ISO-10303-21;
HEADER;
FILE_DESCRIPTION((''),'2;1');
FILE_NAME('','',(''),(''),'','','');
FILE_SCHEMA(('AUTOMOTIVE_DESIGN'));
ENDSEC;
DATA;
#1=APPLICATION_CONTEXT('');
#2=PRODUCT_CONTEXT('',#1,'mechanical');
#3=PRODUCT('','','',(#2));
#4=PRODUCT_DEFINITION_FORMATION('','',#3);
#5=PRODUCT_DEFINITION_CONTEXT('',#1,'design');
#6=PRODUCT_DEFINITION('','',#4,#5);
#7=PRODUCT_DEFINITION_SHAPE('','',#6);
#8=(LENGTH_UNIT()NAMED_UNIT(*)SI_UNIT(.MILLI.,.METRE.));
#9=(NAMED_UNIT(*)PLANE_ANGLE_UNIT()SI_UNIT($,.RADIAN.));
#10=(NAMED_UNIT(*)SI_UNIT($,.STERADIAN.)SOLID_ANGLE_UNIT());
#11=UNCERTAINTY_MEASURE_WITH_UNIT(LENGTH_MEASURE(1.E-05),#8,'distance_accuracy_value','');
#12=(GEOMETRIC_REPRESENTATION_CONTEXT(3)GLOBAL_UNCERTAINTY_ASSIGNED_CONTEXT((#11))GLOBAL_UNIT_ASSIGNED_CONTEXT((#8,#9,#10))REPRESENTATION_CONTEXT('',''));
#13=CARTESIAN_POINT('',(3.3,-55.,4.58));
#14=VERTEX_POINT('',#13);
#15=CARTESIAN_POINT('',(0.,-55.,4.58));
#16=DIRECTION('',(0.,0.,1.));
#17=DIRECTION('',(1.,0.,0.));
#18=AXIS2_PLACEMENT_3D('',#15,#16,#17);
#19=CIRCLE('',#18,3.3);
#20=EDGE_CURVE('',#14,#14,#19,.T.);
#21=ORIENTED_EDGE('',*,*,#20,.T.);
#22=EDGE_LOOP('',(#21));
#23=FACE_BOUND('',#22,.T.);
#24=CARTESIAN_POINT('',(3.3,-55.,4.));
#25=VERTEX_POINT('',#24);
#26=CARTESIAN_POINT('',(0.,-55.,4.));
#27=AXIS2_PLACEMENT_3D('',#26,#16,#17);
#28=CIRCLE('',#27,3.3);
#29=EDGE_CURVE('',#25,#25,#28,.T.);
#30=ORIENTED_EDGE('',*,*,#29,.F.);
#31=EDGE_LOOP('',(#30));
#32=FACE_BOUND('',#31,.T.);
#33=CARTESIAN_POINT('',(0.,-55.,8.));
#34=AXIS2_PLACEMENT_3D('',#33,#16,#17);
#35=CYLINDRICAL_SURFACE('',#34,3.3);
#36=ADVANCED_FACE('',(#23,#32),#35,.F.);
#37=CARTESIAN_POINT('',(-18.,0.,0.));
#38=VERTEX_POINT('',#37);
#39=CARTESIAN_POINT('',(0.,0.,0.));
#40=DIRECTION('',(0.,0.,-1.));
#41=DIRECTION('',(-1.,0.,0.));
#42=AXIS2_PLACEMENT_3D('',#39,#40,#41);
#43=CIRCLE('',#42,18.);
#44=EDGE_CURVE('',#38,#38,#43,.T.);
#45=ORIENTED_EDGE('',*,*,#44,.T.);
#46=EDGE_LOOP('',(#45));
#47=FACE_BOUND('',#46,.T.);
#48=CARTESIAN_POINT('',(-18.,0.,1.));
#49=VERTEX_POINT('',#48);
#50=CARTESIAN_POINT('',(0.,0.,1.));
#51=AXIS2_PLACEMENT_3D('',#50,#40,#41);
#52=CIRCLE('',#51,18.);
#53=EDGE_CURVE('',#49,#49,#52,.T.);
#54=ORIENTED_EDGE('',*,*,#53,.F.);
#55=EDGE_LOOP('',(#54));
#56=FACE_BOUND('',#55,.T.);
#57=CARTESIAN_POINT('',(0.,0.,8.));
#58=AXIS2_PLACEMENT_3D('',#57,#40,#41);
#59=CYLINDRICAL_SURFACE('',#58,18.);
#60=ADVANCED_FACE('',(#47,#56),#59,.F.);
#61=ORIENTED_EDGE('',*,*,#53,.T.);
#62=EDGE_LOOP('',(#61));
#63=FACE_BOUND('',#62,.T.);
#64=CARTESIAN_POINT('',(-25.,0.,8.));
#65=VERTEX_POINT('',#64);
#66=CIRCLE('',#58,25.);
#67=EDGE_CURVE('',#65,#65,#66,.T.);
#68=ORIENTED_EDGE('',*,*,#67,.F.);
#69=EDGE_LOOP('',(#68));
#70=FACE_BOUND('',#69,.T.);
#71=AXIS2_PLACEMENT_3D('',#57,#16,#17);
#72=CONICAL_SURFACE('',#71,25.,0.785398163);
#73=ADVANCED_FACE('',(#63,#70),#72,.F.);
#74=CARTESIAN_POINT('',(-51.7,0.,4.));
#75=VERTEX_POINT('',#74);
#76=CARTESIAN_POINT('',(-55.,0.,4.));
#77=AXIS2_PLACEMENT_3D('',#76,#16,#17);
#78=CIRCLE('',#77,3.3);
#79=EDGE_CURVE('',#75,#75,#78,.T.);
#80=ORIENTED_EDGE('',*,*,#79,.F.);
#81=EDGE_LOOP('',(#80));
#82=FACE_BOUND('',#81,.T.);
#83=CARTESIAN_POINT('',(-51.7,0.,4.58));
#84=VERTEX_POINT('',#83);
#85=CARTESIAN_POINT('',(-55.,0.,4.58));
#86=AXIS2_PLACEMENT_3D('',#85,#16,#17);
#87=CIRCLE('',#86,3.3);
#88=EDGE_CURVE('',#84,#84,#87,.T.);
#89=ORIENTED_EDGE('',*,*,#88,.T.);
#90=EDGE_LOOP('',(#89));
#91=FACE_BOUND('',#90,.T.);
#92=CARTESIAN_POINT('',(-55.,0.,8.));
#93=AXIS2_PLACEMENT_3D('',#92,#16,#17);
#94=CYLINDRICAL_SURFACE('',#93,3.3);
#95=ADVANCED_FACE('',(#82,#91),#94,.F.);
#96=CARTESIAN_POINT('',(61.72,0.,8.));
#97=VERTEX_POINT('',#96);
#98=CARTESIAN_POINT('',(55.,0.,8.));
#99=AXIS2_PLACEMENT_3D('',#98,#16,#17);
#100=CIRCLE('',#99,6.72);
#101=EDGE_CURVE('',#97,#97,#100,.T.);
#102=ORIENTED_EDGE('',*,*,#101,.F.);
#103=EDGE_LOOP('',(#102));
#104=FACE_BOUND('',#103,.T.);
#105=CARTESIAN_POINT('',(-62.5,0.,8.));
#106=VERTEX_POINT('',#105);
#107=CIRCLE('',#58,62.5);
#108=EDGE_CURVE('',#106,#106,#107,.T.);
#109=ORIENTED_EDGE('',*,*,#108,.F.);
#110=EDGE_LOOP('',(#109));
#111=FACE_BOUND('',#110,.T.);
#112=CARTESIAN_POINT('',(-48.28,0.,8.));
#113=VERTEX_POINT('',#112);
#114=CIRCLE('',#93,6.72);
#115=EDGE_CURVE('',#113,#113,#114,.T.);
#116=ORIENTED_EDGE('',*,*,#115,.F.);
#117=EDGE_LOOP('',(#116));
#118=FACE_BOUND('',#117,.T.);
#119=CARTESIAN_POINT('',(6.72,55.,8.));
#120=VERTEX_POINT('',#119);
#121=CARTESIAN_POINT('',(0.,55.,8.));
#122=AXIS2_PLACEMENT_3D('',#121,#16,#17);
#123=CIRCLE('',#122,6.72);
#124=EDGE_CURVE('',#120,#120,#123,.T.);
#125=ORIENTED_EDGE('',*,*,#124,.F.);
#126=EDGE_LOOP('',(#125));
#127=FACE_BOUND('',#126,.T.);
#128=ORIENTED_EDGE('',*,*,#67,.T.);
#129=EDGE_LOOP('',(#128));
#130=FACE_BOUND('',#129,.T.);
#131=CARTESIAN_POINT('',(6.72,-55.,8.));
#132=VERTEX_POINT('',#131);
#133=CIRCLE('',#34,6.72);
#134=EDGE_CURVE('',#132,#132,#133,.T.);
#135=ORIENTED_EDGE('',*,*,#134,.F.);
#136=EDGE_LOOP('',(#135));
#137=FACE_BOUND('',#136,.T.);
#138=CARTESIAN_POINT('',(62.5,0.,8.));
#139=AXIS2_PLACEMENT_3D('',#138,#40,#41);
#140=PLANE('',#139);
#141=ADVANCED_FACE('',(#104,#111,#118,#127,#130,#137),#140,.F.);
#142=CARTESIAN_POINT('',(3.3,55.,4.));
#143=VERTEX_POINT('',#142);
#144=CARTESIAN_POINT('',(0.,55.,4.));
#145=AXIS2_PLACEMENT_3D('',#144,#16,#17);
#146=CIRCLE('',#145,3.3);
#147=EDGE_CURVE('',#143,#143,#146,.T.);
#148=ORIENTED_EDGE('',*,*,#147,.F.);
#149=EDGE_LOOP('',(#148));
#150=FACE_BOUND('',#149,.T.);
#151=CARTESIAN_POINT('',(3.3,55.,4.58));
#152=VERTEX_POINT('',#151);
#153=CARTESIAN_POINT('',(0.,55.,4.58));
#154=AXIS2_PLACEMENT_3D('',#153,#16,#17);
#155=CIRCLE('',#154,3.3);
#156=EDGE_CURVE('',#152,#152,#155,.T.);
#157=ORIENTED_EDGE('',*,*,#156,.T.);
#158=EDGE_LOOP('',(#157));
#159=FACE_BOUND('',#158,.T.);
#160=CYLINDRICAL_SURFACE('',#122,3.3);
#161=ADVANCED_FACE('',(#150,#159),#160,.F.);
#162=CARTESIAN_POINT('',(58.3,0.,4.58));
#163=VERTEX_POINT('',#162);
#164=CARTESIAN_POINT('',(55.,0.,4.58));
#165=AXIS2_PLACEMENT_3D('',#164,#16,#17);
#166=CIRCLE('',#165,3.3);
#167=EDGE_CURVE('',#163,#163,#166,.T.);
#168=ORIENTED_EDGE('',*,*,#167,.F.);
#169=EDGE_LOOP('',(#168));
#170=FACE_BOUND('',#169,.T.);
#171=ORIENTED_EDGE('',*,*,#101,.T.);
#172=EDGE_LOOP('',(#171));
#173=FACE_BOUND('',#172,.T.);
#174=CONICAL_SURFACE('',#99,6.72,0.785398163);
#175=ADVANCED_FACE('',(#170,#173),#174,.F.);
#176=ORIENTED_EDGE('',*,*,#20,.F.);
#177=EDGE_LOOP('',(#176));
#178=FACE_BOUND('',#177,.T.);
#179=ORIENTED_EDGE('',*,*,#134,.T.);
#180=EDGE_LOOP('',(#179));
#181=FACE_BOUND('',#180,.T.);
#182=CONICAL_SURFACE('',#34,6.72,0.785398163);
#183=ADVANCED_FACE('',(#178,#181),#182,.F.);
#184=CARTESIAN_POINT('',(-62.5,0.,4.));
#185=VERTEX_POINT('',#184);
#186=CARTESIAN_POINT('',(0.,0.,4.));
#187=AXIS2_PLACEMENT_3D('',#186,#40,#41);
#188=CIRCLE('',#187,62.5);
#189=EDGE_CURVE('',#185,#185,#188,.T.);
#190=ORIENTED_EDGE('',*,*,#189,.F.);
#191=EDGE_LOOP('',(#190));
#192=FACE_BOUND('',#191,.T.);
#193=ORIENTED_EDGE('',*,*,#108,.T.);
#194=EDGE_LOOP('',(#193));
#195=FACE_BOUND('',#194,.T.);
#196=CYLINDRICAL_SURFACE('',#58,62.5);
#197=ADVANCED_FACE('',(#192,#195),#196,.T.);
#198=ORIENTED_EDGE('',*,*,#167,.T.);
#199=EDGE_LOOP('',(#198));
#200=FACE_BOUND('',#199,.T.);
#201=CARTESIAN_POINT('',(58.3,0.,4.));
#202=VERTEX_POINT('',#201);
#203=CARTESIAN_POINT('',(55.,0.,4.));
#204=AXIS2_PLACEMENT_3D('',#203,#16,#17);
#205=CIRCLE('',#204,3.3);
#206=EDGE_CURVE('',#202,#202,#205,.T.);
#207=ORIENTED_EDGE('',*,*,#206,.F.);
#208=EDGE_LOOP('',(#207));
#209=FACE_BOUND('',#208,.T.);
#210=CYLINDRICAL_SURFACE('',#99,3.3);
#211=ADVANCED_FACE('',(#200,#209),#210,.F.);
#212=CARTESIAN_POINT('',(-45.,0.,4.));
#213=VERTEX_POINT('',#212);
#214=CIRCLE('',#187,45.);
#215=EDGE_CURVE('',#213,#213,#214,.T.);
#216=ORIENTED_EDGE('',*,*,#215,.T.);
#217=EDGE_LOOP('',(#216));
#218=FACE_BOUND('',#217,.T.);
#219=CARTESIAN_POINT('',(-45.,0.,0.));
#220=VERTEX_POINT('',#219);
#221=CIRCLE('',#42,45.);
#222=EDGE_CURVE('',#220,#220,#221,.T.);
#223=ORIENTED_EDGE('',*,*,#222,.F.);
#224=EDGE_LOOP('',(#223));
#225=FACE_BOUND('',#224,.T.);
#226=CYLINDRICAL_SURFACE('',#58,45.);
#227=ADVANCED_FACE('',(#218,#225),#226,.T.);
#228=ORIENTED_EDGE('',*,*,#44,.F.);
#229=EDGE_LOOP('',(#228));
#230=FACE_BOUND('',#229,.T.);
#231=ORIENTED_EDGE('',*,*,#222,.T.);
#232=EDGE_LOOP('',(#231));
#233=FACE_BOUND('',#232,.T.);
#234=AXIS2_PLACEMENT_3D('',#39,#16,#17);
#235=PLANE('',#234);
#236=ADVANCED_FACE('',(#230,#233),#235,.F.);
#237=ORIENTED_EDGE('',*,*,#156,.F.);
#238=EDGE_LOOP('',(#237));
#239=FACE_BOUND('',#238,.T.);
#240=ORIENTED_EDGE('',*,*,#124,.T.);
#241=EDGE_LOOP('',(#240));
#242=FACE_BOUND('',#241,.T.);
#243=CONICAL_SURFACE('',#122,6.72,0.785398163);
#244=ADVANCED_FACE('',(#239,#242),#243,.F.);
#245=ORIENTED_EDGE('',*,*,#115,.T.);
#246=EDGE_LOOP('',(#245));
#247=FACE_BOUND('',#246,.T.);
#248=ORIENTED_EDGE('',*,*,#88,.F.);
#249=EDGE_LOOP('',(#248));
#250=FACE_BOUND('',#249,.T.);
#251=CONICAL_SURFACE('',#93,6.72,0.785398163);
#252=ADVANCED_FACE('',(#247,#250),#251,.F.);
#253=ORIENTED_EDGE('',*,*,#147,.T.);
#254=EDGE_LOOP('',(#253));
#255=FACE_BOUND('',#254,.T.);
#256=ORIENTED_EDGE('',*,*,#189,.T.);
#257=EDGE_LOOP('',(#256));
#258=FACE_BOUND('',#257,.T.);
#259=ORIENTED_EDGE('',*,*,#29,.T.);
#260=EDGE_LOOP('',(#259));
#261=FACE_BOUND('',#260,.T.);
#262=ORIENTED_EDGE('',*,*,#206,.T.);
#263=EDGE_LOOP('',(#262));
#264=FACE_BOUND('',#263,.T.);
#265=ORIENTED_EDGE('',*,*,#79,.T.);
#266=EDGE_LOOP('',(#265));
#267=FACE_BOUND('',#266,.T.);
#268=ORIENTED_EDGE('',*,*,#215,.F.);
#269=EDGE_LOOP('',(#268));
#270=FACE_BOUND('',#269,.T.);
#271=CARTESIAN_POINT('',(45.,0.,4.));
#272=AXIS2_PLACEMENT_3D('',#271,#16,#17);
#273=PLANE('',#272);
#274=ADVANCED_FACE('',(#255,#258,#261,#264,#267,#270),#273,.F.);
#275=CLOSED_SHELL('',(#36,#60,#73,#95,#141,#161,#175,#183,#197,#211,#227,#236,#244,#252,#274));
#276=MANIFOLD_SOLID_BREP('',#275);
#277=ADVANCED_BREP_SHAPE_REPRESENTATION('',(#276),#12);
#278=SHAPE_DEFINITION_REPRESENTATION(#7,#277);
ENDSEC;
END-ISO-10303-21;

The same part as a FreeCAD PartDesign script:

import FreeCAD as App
import Part
import Sketcher
Q = App.Units.Quantity

doc = App.newDocument("Part")
body = doc.addObject("PartDesign::Body", "Body")

# Sketch on XZ plane
sketch1 = body.newObject("Sketcher::SketchObject", "Sketch")
sketch1.AttachmentSupport = (doc.getObject("XZ_Plane"), [""])
sketch1.MapMode = "FlatFace"
sketch1.addGeometry([
    Part.LineSegment(App.Vector(45, 0, 0), App.Vector(0, 0, 0)),  # 0
    Part.LineSegment(App.Vector(0, 0, 0), App.Vector(0, 8, 0)),  # 1
    Part.LineSegment(App.Vector(0, 8, 0), App.Vector(62.5, 8, 0)),  # 2
    Part.LineSegment(App.Vector(62.5, 8, 0), App.Vector(62.5, 4, 0)),  # 3
    Part.LineSegment(App.Vector(62.5, 4, 0), App.Vector(45, 4, 0)),  # 4
    Part.LineSegment(App.Vector(45, 4, 0), App.Vector(45, 0, 0)),  # 5
], False)
sketch1.addConstraint([
    Sketcher.Constraint("Coincident", 0, 2, 1, 1),
    Sketcher.Constraint("Coincident", 1, 2, 2, 1),
    Sketcher.Constraint("Coincident", 2, 2, 3, 1),
    Sketcher.Constraint("Coincident", 3, 2, 4, 1),
    Sketcher.Constraint("Coincident", 4, 2, 5, 1),
    Sketcher.Constraint("Coincident", 5, 2, 0, 1),
    Sketcher.Constraint("Horizontal", 0),
    Sketcher.Constraint("Vertical", 1),
    Sketcher.Constraint("Horizontal", 2),
    Sketcher.Constraint("Vertical", 3),
    Sketcher.Constraint("Horizontal", 4),
    Sketcher.Constraint("Vertical", 5),
    Sketcher.Constraint("Coincident", 0, 2, -1, 1),
    Sketcher.Constraint("Equal", 3, 5),
    Sketcher.Constraint("DistanceX", 0, 2, 0, 1, Q("45 mm")),
    Sketcher.Constraint("DistanceY", 1, 1, 1, 2, Q("8 mm")),
    Sketcher.Constraint("DistanceX", 2, 1, 2, 2, Q("62.5 mm")),
])
revolution = body.newObject("PartDesign::Revolution", "Revolution")
revolution.Profile = sketch1
revolution.ReferenceAxis = (sketch1, ["V_Axis"])
revolution.Angle = 360

# Sketch on XZ plane
sketch2 = body.newObject("Sketcher::SketchObject", "Sketch001")
sketch2.AttachmentSupport = (doc.getObject("XZ_Plane"), [""])
sketch2.MapMode = "FlatFace"
sketch2.addGeometry([
    Part.LineSegment(App.Vector(18, 0, 0), App.Vector(0, 0, 0)),  # 0
    Part.LineSegment(App.Vector(0, 0, 0), App.Vector(0, 8, 0)),  # 1
    Part.LineSegment(App.Vector(0, 8, 0), App.Vector(25, 8, 0)),  # 2
    Part.LineSegment(App.Vector(25, 8, 0), App.Vector(18, 1, 0)),  # 3
    Part.LineSegment(App.Vector(18, 1, 0), App.Vector(18, 0, 0)),  # 4
], False)
sketch2.addConstraint([
    Sketcher.Constraint("Coincident", 0, 2, 1, 1),
    Sketcher.Constraint("Coincident", 1, 2, 2, 1),
    Sketcher.Constraint("Coincident", 2, 2, 3, 1),
    Sketcher.Constraint("Coincident", 3, 2, 4, 1),
    Sketcher.Constraint("Coincident", 4, 2, 0, 1),
    Sketcher.Constraint("Horizontal", 0),
    Sketcher.Constraint("Vertical", 1),
    Sketcher.Constraint("Horizontal", 2),
    Sketcher.Constraint("Vertical", 4),
    Sketcher.Constraint("Coincident", 0, 2, -1, 1),
    Sketcher.Constraint("DistanceX", 0, 2, 0, 1, Q("18 mm")),
    Sketcher.Constraint("DistanceX", 2, 1, 2, 2, Q("25 mm")),
    Sketcher.Constraint("DistanceY", 1, 1, 1, 2, Q("8 mm")),
    Sketcher.Constraint("DistanceY", 4, 2, 4, 1, Q("1 mm")),
])
groove = body.newObject("PartDesign::Groove", "Groove")
groove.Profile = sketch2
groove.ReferenceAxis = (sketch2, ["V_Axis"])
groove.Angle = 360

# Sketch on XY plane
sketch3 = body.newObject("Sketcher::SketchObject", "Sketch002")
sketch3.AttachmentSupport = (doc.getObject("XY_Plane"), [""])
sketch3.MapMode = "FlatFace"
sketch3.AttachmentOffset = App.Placement(App.Vector(0, 0, 8), App.Rotation())
sketch3.addGeometry([
    Part.Circle(App.Vector(-55, 0, 0), App.Vector(0, 0, 1), 3.3),
    Part.Circle(App.Vector(0, 55, 0), App.Vector(0, 0, 1), 3.3),
    Part.Circle(App.Vector(55, 0, 0), App.Vector(0, 0, 1), 3.3),
    Part.Circle(App.Vector(0, -55, 0), App.Vector(0, 0, 1), 3.3),
], False)
sketch3.addConstraint([
    Sketcher.Constraint("Equal", 0, 1),
    Sketcher.Constraint("Equal", 1, 2),
    Sketcher.Constraint("Equal", 2, 3),
    Sketcher.Constraint("Symmetric", 0, 3, 2, 3, -1, 1),
    Sketcher.Constraint("Symmetric", 1, 3, 3, 3, -1, 1),
    Sketcher.Constraint("PointOnObject", 0, 3, -1),
    Sketcher.Constraint("PointOnObject", 1, 3, -2),
    Sketcher.Constraint("Diameter", 0, Q("6.6 mm")),
    Sketcher.Constraint("DistanceX", 0, 3, -1, 1, Q("55 mm")),
    Sketcher.Constraint("DistanceY", -1, 1, 1, 3, Q("55 mm")),
])
doc.recompute()
hole = body.newObject("PartDesign::Hole", "Hole")
hole.Profile = sketch3
hole.ThreadType = "None"
hole.Diameter = 6.6
hole.DepthType = "Dimension"
hole.Depth = 30
hole.DrillPoint = "Angled"
hole.DrillPointAngle = 118
hole.HoleCutType = "Countersink"
hole.HoleCutDiameter = 13.44
hole.HoleCutCountersinkAngle = 90

doc.recompute()
